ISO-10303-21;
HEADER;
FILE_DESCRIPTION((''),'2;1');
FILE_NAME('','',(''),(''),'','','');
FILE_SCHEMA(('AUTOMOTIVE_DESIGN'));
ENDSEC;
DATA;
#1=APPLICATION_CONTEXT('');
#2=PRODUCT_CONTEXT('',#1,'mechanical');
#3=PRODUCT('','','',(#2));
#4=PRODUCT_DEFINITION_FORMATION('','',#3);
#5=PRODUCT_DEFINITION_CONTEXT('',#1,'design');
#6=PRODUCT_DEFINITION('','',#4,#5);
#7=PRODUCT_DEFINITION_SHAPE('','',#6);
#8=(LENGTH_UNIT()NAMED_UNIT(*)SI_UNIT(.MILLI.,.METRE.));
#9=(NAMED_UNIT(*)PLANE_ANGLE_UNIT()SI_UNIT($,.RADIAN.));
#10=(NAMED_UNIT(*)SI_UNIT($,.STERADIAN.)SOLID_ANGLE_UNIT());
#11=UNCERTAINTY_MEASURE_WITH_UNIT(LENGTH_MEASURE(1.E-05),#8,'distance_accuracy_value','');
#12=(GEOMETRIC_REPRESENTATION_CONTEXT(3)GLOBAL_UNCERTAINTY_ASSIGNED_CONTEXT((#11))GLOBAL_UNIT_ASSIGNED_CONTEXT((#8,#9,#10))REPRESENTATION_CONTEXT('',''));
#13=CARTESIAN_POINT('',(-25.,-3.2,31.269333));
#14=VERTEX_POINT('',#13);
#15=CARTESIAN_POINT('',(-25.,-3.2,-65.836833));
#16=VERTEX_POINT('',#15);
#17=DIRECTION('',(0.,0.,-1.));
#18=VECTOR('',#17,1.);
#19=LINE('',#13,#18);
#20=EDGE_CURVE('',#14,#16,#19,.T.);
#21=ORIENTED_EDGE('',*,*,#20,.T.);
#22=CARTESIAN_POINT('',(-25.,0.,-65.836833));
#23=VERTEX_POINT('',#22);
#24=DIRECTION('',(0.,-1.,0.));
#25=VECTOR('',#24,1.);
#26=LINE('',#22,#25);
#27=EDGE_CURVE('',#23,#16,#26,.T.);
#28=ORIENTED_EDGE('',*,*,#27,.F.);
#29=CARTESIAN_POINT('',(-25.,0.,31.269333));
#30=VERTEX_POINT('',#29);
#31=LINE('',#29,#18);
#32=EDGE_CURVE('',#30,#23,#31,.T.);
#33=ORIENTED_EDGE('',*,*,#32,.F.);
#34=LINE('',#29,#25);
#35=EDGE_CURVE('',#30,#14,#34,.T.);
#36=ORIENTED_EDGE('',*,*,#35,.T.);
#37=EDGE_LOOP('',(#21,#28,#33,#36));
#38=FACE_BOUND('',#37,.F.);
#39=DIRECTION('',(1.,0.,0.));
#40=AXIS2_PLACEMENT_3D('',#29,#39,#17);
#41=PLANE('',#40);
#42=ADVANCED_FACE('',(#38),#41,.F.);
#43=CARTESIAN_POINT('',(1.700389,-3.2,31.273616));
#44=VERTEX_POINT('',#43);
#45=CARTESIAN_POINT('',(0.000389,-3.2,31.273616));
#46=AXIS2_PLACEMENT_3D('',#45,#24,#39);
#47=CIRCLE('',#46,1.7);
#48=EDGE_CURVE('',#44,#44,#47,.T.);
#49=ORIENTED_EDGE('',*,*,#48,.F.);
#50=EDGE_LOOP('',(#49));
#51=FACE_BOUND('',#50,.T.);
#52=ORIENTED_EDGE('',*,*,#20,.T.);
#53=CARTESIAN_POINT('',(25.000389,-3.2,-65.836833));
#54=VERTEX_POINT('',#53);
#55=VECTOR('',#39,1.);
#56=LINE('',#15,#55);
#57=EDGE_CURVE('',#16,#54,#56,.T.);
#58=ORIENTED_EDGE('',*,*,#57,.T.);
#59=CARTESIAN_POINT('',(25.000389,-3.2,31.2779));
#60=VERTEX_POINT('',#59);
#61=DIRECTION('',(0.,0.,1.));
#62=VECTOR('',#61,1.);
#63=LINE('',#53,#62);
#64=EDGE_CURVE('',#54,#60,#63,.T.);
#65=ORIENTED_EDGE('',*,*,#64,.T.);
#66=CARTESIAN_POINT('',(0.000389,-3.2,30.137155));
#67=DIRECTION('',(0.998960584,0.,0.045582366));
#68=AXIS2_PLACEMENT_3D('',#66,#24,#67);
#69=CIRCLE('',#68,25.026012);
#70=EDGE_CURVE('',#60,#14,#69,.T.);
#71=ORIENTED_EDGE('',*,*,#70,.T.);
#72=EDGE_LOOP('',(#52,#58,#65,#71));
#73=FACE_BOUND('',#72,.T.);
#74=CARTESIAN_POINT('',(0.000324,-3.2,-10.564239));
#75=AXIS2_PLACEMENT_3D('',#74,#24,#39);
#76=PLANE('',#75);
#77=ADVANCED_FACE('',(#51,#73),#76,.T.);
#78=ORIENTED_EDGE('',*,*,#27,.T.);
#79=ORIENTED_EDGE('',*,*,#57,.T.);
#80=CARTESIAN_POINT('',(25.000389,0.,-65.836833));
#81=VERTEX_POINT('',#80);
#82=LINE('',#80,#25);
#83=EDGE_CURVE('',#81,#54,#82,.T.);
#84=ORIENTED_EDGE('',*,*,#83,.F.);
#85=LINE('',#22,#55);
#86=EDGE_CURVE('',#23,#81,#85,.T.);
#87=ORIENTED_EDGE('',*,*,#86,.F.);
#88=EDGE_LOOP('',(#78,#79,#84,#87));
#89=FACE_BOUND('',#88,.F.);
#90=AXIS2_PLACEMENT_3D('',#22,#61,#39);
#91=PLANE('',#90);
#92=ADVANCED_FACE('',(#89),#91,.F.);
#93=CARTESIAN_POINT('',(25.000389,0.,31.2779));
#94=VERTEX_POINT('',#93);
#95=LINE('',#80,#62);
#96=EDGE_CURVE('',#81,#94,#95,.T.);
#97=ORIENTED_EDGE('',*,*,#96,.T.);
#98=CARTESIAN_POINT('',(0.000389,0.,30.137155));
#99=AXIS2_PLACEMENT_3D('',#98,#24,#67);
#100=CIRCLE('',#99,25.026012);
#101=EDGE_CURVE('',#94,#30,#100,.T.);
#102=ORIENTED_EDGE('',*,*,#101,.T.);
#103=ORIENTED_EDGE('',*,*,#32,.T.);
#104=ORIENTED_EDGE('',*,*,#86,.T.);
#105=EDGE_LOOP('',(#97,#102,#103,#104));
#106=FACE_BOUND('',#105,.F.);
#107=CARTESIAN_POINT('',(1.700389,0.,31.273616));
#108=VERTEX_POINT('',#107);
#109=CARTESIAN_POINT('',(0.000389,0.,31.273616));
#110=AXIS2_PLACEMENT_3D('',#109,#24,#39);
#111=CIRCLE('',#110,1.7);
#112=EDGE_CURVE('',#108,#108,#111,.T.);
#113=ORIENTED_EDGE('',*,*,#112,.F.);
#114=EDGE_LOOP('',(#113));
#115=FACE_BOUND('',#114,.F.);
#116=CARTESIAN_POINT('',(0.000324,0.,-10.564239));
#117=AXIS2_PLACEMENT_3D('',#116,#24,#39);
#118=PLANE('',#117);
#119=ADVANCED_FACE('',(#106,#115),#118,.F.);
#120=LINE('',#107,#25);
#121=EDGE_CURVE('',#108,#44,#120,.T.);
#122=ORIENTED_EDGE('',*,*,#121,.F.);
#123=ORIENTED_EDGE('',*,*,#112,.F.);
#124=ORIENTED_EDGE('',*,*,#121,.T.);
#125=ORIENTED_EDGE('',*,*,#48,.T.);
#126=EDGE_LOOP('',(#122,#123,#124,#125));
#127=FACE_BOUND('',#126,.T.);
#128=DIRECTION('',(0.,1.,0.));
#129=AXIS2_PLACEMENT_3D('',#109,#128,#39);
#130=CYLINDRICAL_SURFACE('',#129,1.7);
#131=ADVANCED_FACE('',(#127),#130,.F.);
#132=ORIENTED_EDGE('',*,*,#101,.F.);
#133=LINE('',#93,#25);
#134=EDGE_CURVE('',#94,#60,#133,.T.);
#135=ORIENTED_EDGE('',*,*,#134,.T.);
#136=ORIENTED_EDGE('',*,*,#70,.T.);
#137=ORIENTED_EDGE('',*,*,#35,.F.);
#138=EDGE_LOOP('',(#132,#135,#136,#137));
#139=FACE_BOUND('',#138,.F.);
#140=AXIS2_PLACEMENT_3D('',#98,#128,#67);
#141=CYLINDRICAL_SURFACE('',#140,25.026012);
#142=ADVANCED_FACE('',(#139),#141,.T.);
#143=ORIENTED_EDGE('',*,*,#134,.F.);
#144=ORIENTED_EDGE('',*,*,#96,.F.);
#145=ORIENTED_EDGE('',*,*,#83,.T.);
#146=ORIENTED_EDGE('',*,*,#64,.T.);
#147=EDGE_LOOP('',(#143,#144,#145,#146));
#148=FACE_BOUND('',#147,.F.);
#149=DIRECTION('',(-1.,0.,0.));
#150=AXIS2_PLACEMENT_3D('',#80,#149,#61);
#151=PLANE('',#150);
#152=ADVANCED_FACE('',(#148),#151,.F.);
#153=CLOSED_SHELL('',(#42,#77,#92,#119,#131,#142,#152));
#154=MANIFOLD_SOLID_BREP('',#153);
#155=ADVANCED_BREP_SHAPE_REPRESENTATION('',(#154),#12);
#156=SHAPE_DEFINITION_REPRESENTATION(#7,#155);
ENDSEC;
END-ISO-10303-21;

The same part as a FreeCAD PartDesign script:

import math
import FreeCAD as App
import Part
import Sketcher

V = App.Vector
Q = App.Units.Quantity

doc = App.newDocument("Part")
body = doc.addObject("PartDesign::Body", "Body")

# Sketch on XZ plane
sketch1 = body.newObject("Sketcher::SketchObject", "Sketch")
sketch1.AttachmentSupport = (doc.getObject("XZ_Plane"), [""])
sketch1.MapMode = "FlatFace"
sketch1.addGeometry(Part.LineSegment(V(-25, 31.3, 0), V(-25, -65.8, 0)), False)
sketch1.addGeometry(Part.LineSegment(V(-25, -65.8, 0), V(25, -65.8, 0)), False)
sketch1.addGeometry(Part.LineSegment(V(25, -65.8, 0), V(25, 31.3, 0)), False)
sketch1.addGeometry(Part.ArcOfCircle(Part.Circle(V(0, 30.1, 0), V(0, 0, 1), 25), math.radians(3), math.radians(177)), False)
sketch1.addGeometry(Part.Circle(V(0, 31.3, 0), V(0, 0, 1), 1.7), False)
sketch1.addConstraint(Sketcher.Constraint("Coincident", 0, 2, 1, 1))
sketch1.addConstraint(Sketcher.Constraint("Coincident", 1, 2, 2, 1))
sketch1.addConstraint(Sketcher.Constraint("Coincident", 2, 2, 3, 1))
sketch1.addConstraint(Sketcher.Constraint("Coincident", 3, 2, 0, 1))
sketch1.addConstraint(Sketcher.Constraint("Vertical", 0))
sketch1.addConstraint(Sketcher.Constraint("Horizontal", 1))
sketch1.addConstraint(Sketcher.Constraint("Vertical", 2))
sketch1.addConstraint(Sketcher.Constraint("Vertical", 3, 3, 4, 3))
sketch1.addConstraint(Sketcher.Constraint("Diameter", 4, Q("3.4 mm")))
sketch1.addConstraint(Sketcher.Constraint("DistanceX", 0, 2, -1, 1, Q("25 mm")))
sketch1.addConstraint(Sketcher.Constraint("DistanceX", 3, 3, 1, 2, Q("25 mm")))
sketch1.addConstraint(Sketcher.Constraint("Radius", 3, Q("25.026012 mm")))
sketch1.addConstraint(Sketcher.Constraint("DistanceX", 1, 1, 1, 2, Q("50.000389 mm")))
sketch1.addConstraint(Sketcher.Constraint("DistanceY", -1, 1, 2, 2, Q("31.2779 mm")))
sketch1.addConstraint(Sketcher.Constraint("DistanceY", 0, 2, 0, 1, Q("97.106166 mm")))
sketch1.addConstraint(Sketcher.Constraint("DistanceY", 3, 3, 4, 3, Q("1.136461 mm")))
pad1 = body.newObject("PartDesign::Pad", "Pad")
pad1.Profile = sketch1
pad1.Length = 3.2

doc.recompute()
